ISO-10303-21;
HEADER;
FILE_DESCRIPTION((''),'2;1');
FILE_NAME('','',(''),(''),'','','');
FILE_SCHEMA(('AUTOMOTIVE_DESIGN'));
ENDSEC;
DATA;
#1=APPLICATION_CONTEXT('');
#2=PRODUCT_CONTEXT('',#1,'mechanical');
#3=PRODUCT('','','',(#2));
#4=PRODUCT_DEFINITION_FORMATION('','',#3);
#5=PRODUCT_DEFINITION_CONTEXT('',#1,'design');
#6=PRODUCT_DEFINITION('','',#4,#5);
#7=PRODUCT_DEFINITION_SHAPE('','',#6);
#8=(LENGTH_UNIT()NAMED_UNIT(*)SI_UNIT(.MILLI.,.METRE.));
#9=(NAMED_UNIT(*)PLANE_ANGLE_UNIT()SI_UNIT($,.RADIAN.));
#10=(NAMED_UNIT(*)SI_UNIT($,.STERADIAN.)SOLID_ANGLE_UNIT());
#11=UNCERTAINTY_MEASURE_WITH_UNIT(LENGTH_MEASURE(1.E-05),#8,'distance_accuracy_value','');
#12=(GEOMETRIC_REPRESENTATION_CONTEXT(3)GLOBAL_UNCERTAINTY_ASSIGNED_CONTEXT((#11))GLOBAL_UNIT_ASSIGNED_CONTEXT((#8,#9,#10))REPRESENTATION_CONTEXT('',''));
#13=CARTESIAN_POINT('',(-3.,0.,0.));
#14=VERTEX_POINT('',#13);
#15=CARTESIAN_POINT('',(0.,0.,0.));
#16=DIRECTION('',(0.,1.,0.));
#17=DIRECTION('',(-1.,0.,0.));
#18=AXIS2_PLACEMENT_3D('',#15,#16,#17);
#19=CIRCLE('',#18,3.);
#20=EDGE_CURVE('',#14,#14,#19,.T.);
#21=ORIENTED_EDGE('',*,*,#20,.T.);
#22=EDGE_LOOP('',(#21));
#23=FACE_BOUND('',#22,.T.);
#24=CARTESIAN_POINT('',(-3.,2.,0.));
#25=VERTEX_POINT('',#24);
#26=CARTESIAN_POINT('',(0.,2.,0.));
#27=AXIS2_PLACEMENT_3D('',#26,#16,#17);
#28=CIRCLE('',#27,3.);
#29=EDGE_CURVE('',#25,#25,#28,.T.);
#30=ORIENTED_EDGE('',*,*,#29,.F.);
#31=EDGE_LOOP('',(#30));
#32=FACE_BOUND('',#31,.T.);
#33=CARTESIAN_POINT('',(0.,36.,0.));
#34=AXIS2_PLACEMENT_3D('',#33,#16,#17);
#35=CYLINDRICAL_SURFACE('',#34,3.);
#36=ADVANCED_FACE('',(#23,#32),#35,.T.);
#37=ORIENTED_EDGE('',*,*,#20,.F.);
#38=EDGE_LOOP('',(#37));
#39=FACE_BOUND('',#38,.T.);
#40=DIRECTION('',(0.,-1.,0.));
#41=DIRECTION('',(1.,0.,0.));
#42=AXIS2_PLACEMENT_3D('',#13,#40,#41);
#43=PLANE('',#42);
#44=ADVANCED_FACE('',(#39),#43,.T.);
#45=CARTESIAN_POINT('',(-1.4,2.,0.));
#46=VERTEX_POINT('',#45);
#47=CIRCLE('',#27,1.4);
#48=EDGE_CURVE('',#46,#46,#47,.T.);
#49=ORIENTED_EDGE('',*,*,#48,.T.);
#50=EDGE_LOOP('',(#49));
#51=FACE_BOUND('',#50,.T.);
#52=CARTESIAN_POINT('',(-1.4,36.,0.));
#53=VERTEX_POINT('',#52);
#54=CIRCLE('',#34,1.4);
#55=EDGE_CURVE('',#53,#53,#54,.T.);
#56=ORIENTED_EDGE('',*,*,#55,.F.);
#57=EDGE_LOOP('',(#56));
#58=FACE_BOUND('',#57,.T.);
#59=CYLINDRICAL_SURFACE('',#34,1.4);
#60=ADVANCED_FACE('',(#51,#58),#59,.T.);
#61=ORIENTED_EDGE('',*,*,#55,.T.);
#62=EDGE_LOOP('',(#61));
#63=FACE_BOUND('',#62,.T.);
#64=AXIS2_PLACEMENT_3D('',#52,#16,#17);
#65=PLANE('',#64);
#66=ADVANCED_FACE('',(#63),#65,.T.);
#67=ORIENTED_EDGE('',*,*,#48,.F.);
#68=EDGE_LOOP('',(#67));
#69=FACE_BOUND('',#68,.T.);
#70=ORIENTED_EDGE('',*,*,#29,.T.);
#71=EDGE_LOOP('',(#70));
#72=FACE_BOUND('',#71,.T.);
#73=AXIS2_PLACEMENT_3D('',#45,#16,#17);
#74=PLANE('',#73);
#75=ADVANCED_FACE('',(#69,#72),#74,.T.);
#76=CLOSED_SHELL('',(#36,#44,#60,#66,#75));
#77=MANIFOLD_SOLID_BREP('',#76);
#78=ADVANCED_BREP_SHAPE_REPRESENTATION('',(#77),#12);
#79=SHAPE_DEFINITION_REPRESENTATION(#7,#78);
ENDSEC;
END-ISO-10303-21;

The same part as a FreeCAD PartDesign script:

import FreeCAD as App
import Part
import Sketcher

V = App.Vector

doc = App.newDocument("Part")
params = doc.addObject("Spreadsheet::Sheet", "Params")
for row, (alias, value) in enumerate([
    ("sketch1_width", "3 mm"),
    ("sketch1_height", "34 mm"),
    ("sketch1_height2", "2 mm"),
    ("sketch1_width2", "1.6 mm"),
    ("revolution_angle", "360 deg"),
], start=1):
    params.set(f"A{row}", alias)
    params.set(f"B{row}", "=" + value)
    params.setAlias(f"B{row}", alias)

body = doc.addObject("PartDesign::Body", "Body")

# Sketch on XY plane
sketch1 = doc.addObject("Sketcher::SketchObject", "Sketch")
body.addObject(sketch1)
sketch1.AttachmentSupport = (doc.XY_Plane, [""])
sketch1.MapMode = "FlatFace"
sketch1.addGeometry([
    Part.LineSegment(V(-1.4, 36, 0), V(-1.4, 2, 0)),  # 0
    Part.LineSegment(V(-1.4, 2, 0), V(-3, 2, 0)),  # 1
    Part.LineSegment(V(-3, 2, 0), V(-3, 0, 0)),  # 2
    Part.LineSegment(V(-3, 0, 0), V(0, 0, 0)),  # 3
    Part.LineSegment(V(0, 0, 0), V(0, 36, 0)),  # 4
    Part.LineSegment(V(0, 36, 0), V(-1.4, 36, 0)),  # 5
], False)
sketch1.addConstraint([
    Sketcher.Constraint("Coincident", 0, 2, 1, 1),
    Sketcher.Constraint("Coincident", 1, 2, 2, 1),
    Sketcher.Constraint("Coincident", 2, 2, 3, 1),
    Sketcher.Constraint("Coincident", 3, 2, 4, 1),
    Sketcher.Constraint("Coincident", 4, 2, 5, 1),
    Sketcher.Constraint("Coincident", 5, 2, 0, 1),
    Sketcher.Constraint("Vertical", 0),
    Sketcher.Constraint("Horizontal", 1),
    Sketcher.Constraint("Vertical", 2),
    Sketcher.Constraint("Horizontal", 3),
    Sketcher.Constraint("Vertical", 4),
    Sketcher.Constraint("Horizontal", 5),
    Sketcher.Constraint("Coincident", 3, 2, -1, 1),
    Sketcher.Constraint("DistanceX", 3, 1, 3, 2, 3.0),
    Sketcher.Constraint("DistanceY", 0, 2, 0, 1, 34.0),
    Sketcher.Constraint("DistanceY", 2, 2, 2, 1, 2.0),
    Sketcher.Constraint("DistanceX", 1, 2, 1, 1, 1.6),
])
sketch1.setExpression("Constraints[13]", "Params.sketch1_width")
sketch1.setExpression("Constraints[14]", "Params.sketch1_height")
sketch1.setExpression("Constraints[15]", "Params.sketch1_height2")
sketch1.setExpression("Constraints[16]", "Params.sketch1_width2")
revolution = doc.addObject("PartDesign::Revolution", "Revolution")
body.addObject(revolution)
revolution.Profile = sketch1
revolution.ReferenceAxis = (sketch1, ["V_Axis"])
revolution.setExpression("Angle", "Params.revolution_angle")

doc.recompute()
